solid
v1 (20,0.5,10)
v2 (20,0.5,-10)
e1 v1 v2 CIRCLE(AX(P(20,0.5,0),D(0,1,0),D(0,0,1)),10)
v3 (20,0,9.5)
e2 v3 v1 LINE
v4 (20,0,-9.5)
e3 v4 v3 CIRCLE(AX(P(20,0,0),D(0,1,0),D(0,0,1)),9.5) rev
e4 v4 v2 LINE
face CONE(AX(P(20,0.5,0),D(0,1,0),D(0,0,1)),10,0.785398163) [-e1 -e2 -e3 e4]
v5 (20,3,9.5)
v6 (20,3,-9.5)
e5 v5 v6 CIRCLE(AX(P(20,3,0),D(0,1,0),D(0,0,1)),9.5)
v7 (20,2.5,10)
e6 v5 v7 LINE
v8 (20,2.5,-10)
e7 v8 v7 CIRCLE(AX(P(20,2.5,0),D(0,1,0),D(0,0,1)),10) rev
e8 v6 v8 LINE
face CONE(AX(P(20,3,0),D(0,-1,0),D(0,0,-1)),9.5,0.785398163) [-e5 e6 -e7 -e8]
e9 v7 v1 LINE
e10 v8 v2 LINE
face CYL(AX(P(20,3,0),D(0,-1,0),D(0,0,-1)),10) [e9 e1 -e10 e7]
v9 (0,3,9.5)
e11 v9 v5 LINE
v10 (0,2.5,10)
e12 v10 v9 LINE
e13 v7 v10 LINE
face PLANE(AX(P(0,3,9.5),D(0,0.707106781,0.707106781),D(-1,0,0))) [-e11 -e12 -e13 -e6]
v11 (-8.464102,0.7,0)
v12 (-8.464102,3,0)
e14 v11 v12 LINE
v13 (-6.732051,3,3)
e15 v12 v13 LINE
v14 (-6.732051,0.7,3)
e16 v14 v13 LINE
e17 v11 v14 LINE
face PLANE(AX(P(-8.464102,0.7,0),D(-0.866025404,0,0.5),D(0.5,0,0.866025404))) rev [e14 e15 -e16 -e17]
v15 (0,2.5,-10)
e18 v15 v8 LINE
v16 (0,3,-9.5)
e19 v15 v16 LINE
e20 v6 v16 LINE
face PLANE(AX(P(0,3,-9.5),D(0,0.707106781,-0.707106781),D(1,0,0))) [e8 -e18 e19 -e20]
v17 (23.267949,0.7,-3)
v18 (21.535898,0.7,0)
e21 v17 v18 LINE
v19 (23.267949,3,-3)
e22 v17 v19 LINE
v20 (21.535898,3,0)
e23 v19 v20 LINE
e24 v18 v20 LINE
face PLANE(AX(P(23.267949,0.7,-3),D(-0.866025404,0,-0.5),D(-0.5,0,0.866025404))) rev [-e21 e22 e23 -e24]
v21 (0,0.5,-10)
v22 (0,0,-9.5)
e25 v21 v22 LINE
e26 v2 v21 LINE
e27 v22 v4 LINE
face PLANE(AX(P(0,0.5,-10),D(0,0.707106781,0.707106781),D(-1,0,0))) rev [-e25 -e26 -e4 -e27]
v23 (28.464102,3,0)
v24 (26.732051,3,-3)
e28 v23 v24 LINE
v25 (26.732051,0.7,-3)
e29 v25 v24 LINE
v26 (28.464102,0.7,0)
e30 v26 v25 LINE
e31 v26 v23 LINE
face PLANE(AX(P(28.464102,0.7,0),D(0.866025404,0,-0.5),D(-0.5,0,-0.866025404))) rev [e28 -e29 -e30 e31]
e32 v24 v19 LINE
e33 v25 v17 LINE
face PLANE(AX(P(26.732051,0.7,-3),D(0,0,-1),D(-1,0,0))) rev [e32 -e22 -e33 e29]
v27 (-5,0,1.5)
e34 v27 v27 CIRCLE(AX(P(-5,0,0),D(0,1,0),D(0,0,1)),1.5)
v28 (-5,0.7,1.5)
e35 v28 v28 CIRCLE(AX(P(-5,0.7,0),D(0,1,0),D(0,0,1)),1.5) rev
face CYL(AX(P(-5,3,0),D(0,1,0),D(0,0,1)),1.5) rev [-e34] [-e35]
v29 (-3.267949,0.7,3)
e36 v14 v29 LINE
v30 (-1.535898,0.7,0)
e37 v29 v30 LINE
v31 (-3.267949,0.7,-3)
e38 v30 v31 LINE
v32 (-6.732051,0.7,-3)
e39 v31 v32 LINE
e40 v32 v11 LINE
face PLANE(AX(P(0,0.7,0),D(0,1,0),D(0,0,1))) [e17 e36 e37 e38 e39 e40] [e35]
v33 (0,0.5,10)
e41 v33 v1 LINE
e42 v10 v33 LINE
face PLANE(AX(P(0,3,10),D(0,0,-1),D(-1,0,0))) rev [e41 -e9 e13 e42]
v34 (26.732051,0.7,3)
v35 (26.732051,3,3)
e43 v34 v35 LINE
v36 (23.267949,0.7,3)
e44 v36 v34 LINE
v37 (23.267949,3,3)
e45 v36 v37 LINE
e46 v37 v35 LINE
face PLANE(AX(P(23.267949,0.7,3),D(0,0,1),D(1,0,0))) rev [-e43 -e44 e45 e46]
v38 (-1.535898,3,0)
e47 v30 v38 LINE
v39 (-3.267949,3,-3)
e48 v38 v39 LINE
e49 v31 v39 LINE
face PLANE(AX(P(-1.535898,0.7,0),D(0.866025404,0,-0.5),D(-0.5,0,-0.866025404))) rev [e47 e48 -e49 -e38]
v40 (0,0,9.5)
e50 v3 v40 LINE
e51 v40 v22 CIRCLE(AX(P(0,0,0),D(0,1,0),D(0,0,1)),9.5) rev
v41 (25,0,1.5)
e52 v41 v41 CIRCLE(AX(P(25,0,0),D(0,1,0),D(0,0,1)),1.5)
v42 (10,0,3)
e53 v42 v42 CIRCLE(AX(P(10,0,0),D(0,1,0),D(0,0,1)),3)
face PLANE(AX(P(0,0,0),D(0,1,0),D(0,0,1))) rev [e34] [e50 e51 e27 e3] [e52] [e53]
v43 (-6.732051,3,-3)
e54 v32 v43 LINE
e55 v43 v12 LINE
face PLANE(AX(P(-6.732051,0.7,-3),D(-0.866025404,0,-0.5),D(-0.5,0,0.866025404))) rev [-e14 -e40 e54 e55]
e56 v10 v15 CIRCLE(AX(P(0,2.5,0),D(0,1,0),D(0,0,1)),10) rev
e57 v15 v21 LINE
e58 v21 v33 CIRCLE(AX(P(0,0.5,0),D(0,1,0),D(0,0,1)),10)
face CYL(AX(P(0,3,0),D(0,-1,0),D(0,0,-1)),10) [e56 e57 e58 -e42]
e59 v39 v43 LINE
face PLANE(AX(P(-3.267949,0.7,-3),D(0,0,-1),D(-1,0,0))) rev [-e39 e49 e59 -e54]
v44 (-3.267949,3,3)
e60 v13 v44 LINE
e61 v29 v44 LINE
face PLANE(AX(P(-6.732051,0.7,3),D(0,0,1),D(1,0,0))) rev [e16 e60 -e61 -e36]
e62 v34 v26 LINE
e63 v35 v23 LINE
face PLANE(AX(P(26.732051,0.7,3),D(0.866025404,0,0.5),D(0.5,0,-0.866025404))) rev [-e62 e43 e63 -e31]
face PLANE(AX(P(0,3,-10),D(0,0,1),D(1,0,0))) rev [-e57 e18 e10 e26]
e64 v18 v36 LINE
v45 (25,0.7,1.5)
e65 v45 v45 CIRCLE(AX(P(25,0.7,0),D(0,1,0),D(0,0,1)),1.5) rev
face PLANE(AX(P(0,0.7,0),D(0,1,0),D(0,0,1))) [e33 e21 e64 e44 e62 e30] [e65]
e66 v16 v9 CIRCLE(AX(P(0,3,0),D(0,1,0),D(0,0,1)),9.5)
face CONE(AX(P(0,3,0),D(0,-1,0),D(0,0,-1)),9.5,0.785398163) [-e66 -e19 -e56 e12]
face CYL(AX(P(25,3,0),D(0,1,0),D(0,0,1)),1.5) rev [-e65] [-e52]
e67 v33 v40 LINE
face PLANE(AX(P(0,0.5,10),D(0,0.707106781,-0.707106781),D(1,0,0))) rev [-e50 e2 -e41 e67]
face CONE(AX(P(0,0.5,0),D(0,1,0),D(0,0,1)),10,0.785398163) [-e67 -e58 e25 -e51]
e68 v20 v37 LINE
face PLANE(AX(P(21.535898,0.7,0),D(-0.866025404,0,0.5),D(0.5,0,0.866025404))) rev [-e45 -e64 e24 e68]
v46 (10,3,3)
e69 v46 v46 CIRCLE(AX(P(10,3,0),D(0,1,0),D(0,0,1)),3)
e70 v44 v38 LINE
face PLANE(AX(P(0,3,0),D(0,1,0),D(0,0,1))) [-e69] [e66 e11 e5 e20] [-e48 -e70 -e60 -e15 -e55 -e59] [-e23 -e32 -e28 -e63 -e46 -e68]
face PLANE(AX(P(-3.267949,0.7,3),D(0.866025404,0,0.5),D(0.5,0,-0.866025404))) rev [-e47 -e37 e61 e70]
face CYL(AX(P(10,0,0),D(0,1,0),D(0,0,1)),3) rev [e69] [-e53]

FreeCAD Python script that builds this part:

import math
import FreeCAD as App
import Part
import Sketcher

V = App.Vector
Q = App.Units.Quantity


def edges_at(feature, points):
    """Names of the edges that pass closest to the given points."""
    edges = feature.Shape.Edges
    near = lambda p: min(range(len(edges)), key=lambda i: edges[i].distToShape(Part.Vertex(*p))[0])
    return sorted({f"Edge{near(p) + 1}" for p in points})

doc = App.newDocument("Part")
body = doc.addObject("PartDesign::Body", "Body")

# Sketch on XZ plane
sketch1 = body.newObject("Sketcher::SketchObject", "Sketch")
sketch1.AttachmentSupport = (doc.getObject("XZ_Plane"), [""])
sketch1.MapMode = "FlatFace"
sketch1.addGeometry(Part.LineSegment(V(20, -10, 0), V(0, -10, 0)), False)
sketch1.addGeometry(Part.ArcOfCircle(Part.Circle(V(0, 0, 0), V(0, 0, 1), 10), math.radians(90), math.radians(270)), False)
sketch1.addGeometry(Part.LineSegment(V(0, 10, 0), V(20, 10, 0)), False)
sketch1.addGeometry(Part.ArcOfCircle(Part.Circle(V(20, 0, 0), V(0, 0, 1), 10), math.radians(-90), math.radians(90)), False)
sketch1.addConstraint(Sketcher.Constraint("Tangent", 0, 2, 1, 2))
sketch1.addConstraint(Sketcher.Constraint("Tangent", 1, 1, 2, 1))
sketch1.addConstraint(Sketcher.Constraint("Tangent", 2, 2, 3, 2))
sketch1.addConstraint(Sketcher.Constraint("Tangent", 3, 1, 0, 1))
sketch1.addConstraint(Sketcher.Constraint("Horizontal", 0))
sketch1.addConstraint(Sketcher.Constraint("Horizontal", 2))
sketch1.addConstraint(Sketcher.Constraint("Coincident", 1, 3, -1, 1))
sketch1.addConstraint(Sketcher.Constraint("Radius", 1, Q("10 mm")))
sketch1.addConstraint(Sketcher.Constraint("DistanceX", 0, 2, 0, 1, Q("20 mm")))
pad1 = body.newObject("PartDesign::Pad", "Pad")
pad1.Profile = sketch1
pad1.Length = 3
pad1.Reversed = True

# Sketch on XZ plane
sketch2 = body.newObject("Sketcher::SketchObject", "Sketch001")
sketch2.AttachmentSupport = (doc.getObject("XZ_Plane"), [""])
sketch2.MapMode = "FlatFace"
sketch2.AttachmentOffset = App.Placement(V(0, 0, -3), App.Rotation())
sketch2.addGeometry(Part.Circle(V(-5, 0, 0), V(0, 0, 1), 1.5), False)
sketch2.addGeometry(Part.Circle(V(25, 0, 0), V(0, 0, 1), 1.5), False)
sketch2.addConstraint(Sketcher.Constraint("Equal", 0, 1))
sketch2.addConstraint(Sketcher.Constraint("PointOnObject", 0, 3, -1))
sketch2.addConstraint(Sketcher.Constraint("PointOnObject", 1, 3, -1))
sketch2.addConstraint(Sketcher.Constraint("Diameter", 0, Q("3 mm")))
sketch2.addConstraint(Sketcher.Constraint("DistanceX", 0, 3, -1, 1, Q("5 mm")))
sketch2.addConstraint(Sketcher.Constraint("DistanceX", -1, 1, 1, 3, Q("25 mm")))
doc.recompute()
hole = body.newObject("PartDesign::Hole", "Hole")
hole.Profile = sketch2
hole.ThreadType = "None"
hole.Diameter = 3
hole.DepthType = "ThroughAll"
hole.HoleCutType = "Countersink"
hole.HoleCutDiameter = 3.05
hole.HoleCutCountersinkAngle = 90
hole.Reversed = True
doc.recompute()

chamfer = body.newObject("PartDesign::Chamfer", "Chamfer")
chamfer.Base = (hole, edges_at(hole, [
    (30, 3, 0),
    (10, 3, -10),
    (-10, 3, 0),
    (10, 0, -10),
    (30, 0, 0),
    (10, 0, 10),
    (-10, 0, 0),
    (10, 3, 10),
]))
chamfer.Size = 0.5

# Sketch on XZ plane
sketch3 = body.newObject("Sketcher::SketchObject", "Sketch002")
sketch3.AttachmentSupport = (doc.getObject("XZ_Plane"), [""])
sketch3.MapMode = "FlatFace"
sketch3.AttachmentOffset = App.Placement(V(0, 0, -3), App.Rotation())
sketch3.addGeometry(Part.Circle(V(10, 0, 0), V(0, 0, 1), 3), False)
sketch3.addConstraint(Sketcher.Constraint("PointOnObject", 0, 3, -1))
sketch3.addConstraint(Sketcher.Constraint("Diameter", 0, Q("6 mm")))
sketch3.addConstraint(Sketcher.Constraint("DistanceX", -1, 1, 0, 3, Q("10 mm")))
pocket1 = body.newObject("PartDesign::Pocket", "Pocket")
pocket1.Profile = sketch3
pocket1.Type = "ThroughAll"
pocket1.Reversed = True

# Sketch on XZ plane
sketch4 = body.newObject("Sketcher::SketchObject", "Sketch003")
sketch4.AttachmentSupport = (doc.getObject("XZ_Plane"), [""])
sketch4.MapMode = "FlatFace"
sketch4.AttachmentOffset = App.Placement(V(0, 0, -3), App.Rotation())
sketch4.addGeometry(Part.LineSegment(V(-1.5, 0, 0), V(-3.3, -3, 0)), False)
sketch4.addGeometry(Part.LineSegment(V(-3.3, -3, 0), V(-6.7, -3, 0)), False)
sketch4.addGeometry(Part.LineSegment(V(-6.7, -3, 0), V(-8.5, 0, 0)), False)
sketch4.addGeometry(Part.LineSegment(V(-8.5, 0, 0), V(-6.7, 3, 0)), False)
sketch4.addGeometry(Part.LineSegment(V(-6.7, 3, 0), V(-3.3, 3, 0)), False)
sketch4.addGeometry(Part.LineSegment(V(-3.3, 3, 0), V(-1.5, 0, 0)), False)
sketch4.addGeometry(Part.LineSegment(V(21.5, 0, 0), V(23.3, 3, 0)), False)
sketch4.addGeometry(Part.LineSegment(V(23.3, 3, 0), V(26.7, 3, 0)), False)
sketch4.addGeometry(Part.LineSegment(V(26.7, 3, 0), V(28.5, 0, 0)), False)
sketch4.addGeometry(Part.LineSegment(V(28.5, 0, 0), V(26.7, -3, 0)), False)
sketch4.addGeometry(Part.LineSegment(V(26.7, -3, 0), V(23.3, -3, 0)), False)
sketch4.addGeometry(Part.LineSegment(V(23.3, -3, 0), V(21.5, 0, 0)), False)
sketch4.addConstraint(Sketcher.Constraint("Coincident", 0, 2, 1, 1))
sketch4.addConstraint(Sketcher.Constraint("Coincident", 1, 2, 2, 1))
sketch4.addConstraint(Sketcher.Constraint("Coincident", 2, 2, 3, 1))
sketch4.addConstraint(Sketcher.Constraint("Coincident", 3, 2, 4, 1))
sketch4.addConstraint(Sketcher.Constraint("Coincident", 4, 2, 5, 1))
sketch4.addConstraint(Sketcher.Constraint("Coincident", 5, 2, 0, 1))
sketch4.addConstraint(Sketcher.Constraint("Coincident", 6, 2, 7, 1))
sketch4.addConstraint(Sketcher.Constraint("Coincident", 7, 2, 8, 1))
sketch4.addConstraint(Sketcher.Constraint("Coincident", 8, 2, 9, 1))
sketch4.addConstraint(Sketcher.Constraint("Coincident", 9, 2, 10, 1))
sketch4.addConstraint(Sketcher.Constraint("Coincident", 10, 2, 11, 1))
sketch4.addConstraint(Sketcher.Constraint("Coincident", 11, 2, 6, 1))
sketch4.addConstraint(Sketcher.Constraint("Horizontal", 1))
sketch4.addConstraint(Sketcher.Constraint("Horizontal", 4))
sketch4.addConstraint(Sketcher.Constraint("Horizontal", 7))
sketch4.addConstraint(Sketcher.Constraint("Horizontal", 10))
sketch4.addConstraint(Sketcher.Constraint("Symmetric", 1, 2, 3, 2, -1))
sketch4.addConstraint(Sketcher.Constraint("Symmetric", 7, 2, 9, 2, -1))
sketch4.addConstraint(Sketcher.Constraint("PointOnObject", 2, 2, -1))
sketch4.addConstraint(Sketcher.Constraint("PointOnObject", 5, 2, -1))
sketch4.addConstraint(Sketcher.Constraint("PointOnObject", 8, 2, -1))
sketch4.addConstraint(Sketcher.Constraint("PointOnObject", 11, 2, -1))
sketch4.addConstraint(Sketcher.Constraint("Parallel", 0, 3))
sketch4.addConstraint(Sketcher.Constraint("Parallel", 2, 5))
sketch4.addConstraint(Sketcher.Constraint("Parallel", 3, 6))
sketch4.addConstraint(Sketcher.Constraint("Parallel", 5, 8))
sketch4.addConstraint(Sketcher.Constraint("Parallel", 8, 11))
sketch4.addConstraint(Sketcher.Constraint("Horizontal", 4, 2, 6, 2))
sketch4.addConstraint(Sketcher.Constraint("Equal", 4, 7))
sketch4.addConstraint(Sketcher.Constraint("Angle", 0, Q("-120 deg")))
sketch4.addConstraint(Sketcher.Constraint("DistanceY", 0, 2, -1, 1, Q("3 mm")))
sketch4.addConstraint(Sketcher.Constraint("DistanceX", 3, 2, 6, 2, Q("30 mm")))
sketch4.addConstraint(Sketcher.Constraint("DistanceX", 1, 2, 1, 1, Q("3.464102 mm")))
sketch4.addConstraint(Sketcher.Constraint("DistanceX", 2, 2, -1, 1, Q("8.464102 mm")))
pocket2 = body.newObject("PartDesign::Pocket", "Pocket001")
pocket2.Profile = sketch4
pocket2.Length = 2.3
pocket2.Reversed = True

doc.recompute()
